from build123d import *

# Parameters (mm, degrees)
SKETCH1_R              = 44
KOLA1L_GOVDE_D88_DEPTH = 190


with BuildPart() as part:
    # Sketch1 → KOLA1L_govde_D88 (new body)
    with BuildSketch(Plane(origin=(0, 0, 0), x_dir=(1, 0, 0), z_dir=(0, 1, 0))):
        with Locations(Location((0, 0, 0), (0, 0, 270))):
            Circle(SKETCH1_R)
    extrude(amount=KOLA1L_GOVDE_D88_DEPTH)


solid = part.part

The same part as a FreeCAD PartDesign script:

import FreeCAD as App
import Part
import Sketcher
from FreeCAD import Vector
Q = App.Units.Quantity

doc = App.newDocument("Part")
body = doc.addObject("PartDesign::Body", "Body")

# Sketch on XZ plane
sketch1 = doc.addObject("Sketcher::SketchObject", "Sketch")
body.addObject(sketch1)
sketch1.AttachmentSupport = (doc.XZ_Plane, [""])
sketch1.MapMode = "FlatFace"
sketch1.addGeometry(Part.Circle(Vector(0, 0, 0), Vector(0, 0, 1), 44), False)
sketch1.addConstraint(Sketcher.Constraint("Coincident", 0, 3, -1, 1))
sketch1.addConstraint(Sketcher.Constraint("Diameter", 0, Q("88 mm")))
pad1 = doc.addObject("PartDesign::Pad", "Pad")
body.addObject(pad1)
pad1.Profile = sketch1
pad1.Length = 190
pad1.Reversed = True

doc.recompute()
